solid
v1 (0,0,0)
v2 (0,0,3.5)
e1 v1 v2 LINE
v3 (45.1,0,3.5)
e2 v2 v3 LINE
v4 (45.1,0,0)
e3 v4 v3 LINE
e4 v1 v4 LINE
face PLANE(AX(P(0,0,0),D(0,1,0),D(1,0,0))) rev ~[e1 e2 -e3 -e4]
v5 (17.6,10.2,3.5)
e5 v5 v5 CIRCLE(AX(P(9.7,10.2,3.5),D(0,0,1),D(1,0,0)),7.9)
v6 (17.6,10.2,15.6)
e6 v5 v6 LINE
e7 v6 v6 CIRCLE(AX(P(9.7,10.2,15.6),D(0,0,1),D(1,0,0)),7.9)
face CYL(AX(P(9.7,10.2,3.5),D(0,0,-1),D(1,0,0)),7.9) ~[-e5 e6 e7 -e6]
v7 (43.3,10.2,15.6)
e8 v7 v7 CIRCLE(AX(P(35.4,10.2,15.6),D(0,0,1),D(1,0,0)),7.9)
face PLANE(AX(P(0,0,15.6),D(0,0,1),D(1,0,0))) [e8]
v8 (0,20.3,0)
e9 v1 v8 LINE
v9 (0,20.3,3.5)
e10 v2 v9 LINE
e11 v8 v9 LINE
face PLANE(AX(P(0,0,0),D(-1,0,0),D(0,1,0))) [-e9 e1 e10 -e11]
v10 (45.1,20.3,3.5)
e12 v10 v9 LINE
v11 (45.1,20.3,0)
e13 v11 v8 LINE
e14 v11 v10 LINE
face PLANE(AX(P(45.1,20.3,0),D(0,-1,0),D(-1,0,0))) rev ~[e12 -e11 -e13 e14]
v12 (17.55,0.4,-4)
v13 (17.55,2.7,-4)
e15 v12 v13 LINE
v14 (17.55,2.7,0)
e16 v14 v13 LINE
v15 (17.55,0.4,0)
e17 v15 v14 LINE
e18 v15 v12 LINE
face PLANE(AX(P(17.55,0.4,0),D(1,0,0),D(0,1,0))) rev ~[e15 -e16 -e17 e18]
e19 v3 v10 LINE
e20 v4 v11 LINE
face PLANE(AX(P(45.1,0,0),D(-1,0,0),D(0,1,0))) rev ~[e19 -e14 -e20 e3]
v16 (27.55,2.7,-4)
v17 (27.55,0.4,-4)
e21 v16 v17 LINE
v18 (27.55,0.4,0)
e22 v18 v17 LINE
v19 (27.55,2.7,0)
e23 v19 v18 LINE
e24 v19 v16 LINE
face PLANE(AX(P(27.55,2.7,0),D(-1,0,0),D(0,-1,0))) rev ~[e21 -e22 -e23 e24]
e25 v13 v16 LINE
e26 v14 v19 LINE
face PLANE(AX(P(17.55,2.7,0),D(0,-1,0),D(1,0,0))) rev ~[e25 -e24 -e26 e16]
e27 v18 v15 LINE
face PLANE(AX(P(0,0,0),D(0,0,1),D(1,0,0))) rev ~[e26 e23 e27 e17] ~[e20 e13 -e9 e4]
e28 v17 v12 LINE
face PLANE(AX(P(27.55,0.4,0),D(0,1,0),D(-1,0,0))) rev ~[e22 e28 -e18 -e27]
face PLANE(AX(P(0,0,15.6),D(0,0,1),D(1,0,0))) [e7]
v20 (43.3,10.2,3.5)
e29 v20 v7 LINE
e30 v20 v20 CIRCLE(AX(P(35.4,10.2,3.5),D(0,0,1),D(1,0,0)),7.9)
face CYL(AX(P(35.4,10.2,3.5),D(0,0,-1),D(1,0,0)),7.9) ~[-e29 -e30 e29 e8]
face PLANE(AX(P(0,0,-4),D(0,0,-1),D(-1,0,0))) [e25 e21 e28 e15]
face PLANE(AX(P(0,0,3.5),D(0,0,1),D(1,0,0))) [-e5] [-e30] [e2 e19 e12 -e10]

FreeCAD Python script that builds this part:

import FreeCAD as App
import Part
import Sketcher
from FreeCAD import Vector


def add_polygon(sketch, points):
    """Adds a closed chain of lines whose ends are joined by coincident constraints."""
    first, n = sketch.GeometryCount, len(points)
    for a, b in zip(points, points[1:] + points[:1]):
        sketch.addGeometry(Part.LineSegment(App.Vector(*a, 0), App.Vector(*b, 0)), False)
    for i in range(n):
        sketch.addConstraint(Sketcher.Constraint("Coincident", first + i, 2, first + (i + 1) % n, 1))

doc = App.newDocument("Part")
params = doc.addObject("Spreadsheet::Sheet", "Params")
for row, (alias, value) in enumerate([
    ("sketch1_width", "45.1 mm"),
    ("sketch1_height", "20.3 mm"),
    ("pad1_length", "3.5 mm"),
    ("sketch2_diameter", "15.8 mm"),
    ("pad2_length", "12.1 mm"),
    ("sketch3_width", "10 mm"),
    ("sketch3_height", "2.3 mm"),
    ("pad3_length", "4 mm"),
], start=1):
    params.set(f"A{row}", alias)
    params.set(f"B{row}", "=" + value)
    params.setAlias(f"B{row}", alias)

body = doc.addObject("PartDesign::Body", "Body")

# Sketch on XY plane
sketch1 = body.newObject("Sketcher::SketchObject", "Sketch")
sketch1.AttachmentSupport = (doc.getObject("XY_Plane"), [""])
sketch1.MapMode = "FlatFace"
add_polygon(sketch1, [(0, 20), (0, 0), (45, 0), (45, 20)])  # lines 0-3
sketch1.addConstraint([
    Sketcher.Constraint("Vertical", 0),
    Sketcher.Constraint("Horizontal", 1),
    Sketcher.Constraint("Vertical", 2),
    Sketcher.Constraint("Horizontal", 3),
    Sketcher.Constraint("Coincident", 0, 2, -1, 1),
    Sketcher.Constraint("DistanceX", 1, 1, 1, 2, 45.1),
    Sketcher.Constraint("DistanceY", 0, 2, 0, 1, 20.3),
])
sketch1.setExpression("Constraints[9]", "Params.sketch1_width")
sketch1.setExpression("Constraints[10]", "Params.sketch1_height")
pad1 = body.newObject("PartDesign::Pad", "Pad")
pad1.Profile = sketch1
pad1.setExpression("Length", "Params.pad1_length")

# Sketch on XY plane
sketch2 = body.newObject("Sketcher::SketchObject", "Sketch001")
sketch2.AttachmentSupport = (doc.getObject("XY_Plane"), [""])
sketch2.MapMode = "FlatFace"
sketch2.AttachmentOffset = App.Placement(Vector(0, 0, 3.5), App.Rotation())
sketch2.addGeometry([
    Part.Circle(Vector(35, 10, 0), Vector(0, 0, 1), 8),
    Part.Circle(Vector(10, 10, 0), Vector(0, 0, 1), 8),
], False)
sketch2.addConstraint([
    Sketcher.Constraint("Equal", 0, 1),
    Sketcher.Constraint("Horizontal", 0, 3, 1, 3),
    Sketcher.Constraint("Diameter", 0, 15.8),
    Sketcher.Constraint("DistanceY", -1, 1, 0, 3, 10.2),
    Sketcher.Constraint("DistanceX", -1, 1, 1, 3, 9.7),
    Sketcher.Constraint("DistanceX", 1, 3, 0, 3, 25.7),
])
sketch2.setExpression("Constraints[2]", "Params.sketch2_diameter")
pad2 = body.newObject("PartDesign::Pad", "Pad001")
pad2.Profile = sketch2
pad2.setExpression("Length", "Params.pad2_length")

# Sketch on XY plane
sketch3 = body.newObject("Sketcher::SketchObject", "Sketch002")
sketch3.AttachmentSupport = (doc.getObject("XY_Plane"), [""])
sketch3.MapMode = "FlatFace"
add_polygon(sketch3, [(17.6, 0.4), (17.6, 2.7), (27.6, 2.7), (27.6, 0.4)])  # lines 0-3
sketch3.addConstraint([
    Sketcher.Constraint("Vertical", 0),
    Sketcher.Constraint("Horizontal", 1),
    Sketcher.Constraint("Vertical", 2),
    Sketcher.Constraint("Horizontal", 3),
    Sketcher.Constraint("DistanceX", 1, 1, 1, 2, 10.0),
    Sketcher.Constraint("DistanceY", 0, 1, 0, 2, 2.3),
    Sketcher.Constraint("DistanceY", -1, 1, 0, 2, 2.7),
    Sketcher.Constraint("DistanceX", -1, 1, 0, 2, 17.55),
])
sketch3.setExpression("Constraints[8]", "Params.sketch3_width")
sketch3.setExpression("Constraints[9]", "Params.sketch3_height")
pad3 = body.newObject("PartDesign::Pad", "Pad002")
pad3.Profile = sketch3
pad3.setExpression("Length", "Params.pad3_length")
pad3.Reversed = True

doc.recompute()
